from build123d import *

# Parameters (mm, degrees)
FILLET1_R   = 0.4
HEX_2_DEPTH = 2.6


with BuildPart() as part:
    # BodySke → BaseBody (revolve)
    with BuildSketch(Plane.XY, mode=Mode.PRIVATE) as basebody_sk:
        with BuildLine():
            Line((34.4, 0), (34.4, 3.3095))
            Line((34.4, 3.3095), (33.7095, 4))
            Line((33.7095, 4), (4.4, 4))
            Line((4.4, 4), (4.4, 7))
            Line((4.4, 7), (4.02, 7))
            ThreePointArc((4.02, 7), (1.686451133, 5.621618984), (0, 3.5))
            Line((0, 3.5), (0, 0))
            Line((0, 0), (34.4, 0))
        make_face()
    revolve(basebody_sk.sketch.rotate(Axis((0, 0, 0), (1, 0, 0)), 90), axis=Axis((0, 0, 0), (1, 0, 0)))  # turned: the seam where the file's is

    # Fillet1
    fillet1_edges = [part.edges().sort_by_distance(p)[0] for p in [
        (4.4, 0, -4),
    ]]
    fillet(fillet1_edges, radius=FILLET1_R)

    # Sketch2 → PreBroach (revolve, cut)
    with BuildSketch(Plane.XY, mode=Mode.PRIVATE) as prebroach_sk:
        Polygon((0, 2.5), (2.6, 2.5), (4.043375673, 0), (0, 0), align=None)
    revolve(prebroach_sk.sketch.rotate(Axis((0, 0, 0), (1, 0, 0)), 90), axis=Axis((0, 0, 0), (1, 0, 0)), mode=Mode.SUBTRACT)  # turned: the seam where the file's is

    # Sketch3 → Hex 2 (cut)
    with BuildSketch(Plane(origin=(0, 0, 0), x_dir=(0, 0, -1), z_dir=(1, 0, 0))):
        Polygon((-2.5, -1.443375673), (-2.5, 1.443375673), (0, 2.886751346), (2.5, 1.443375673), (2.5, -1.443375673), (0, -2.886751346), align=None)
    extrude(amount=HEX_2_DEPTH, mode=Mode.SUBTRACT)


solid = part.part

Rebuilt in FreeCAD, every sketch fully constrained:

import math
import FreeCAD as App
import Part
import Sketcher
Q = App.Units.Quantity


def edges_at(feature, points):
    """Names of the edges that pass closest to the given points."""
    edges = feature.Shape.Edges
    near = lambda p: min(range(len(edges)), key=lambda i: edges[i].distToShape(Part.Vertex(*p))[0])
    return sorted({f"Edge{near(p) + 1}" for p in points})


def add_polygon(sketch, points):
    """Adds a closed chain of lines whose ends are joined by coincident constraints."""
    first, n = sketch.GeometryCount, len(points)
    for a, b in zip(points, points[1:] + points[:1]):
        sketch.addGeometry(Part.LineSegment(App.Vector(*a, 0), App.Vector(*b, 0)), False)
    for i in range(n):
        sketch.addConstraint(Sketcher.Constraint("Coincident", first + i, 2, first + (i + 1) % n, 1))

doc = App.newDocument("Part")
body = doc.addObject("PartDesign::Body", "Body")

sketch1 = body.newObject("Sketcher::SketchObject", "Sketch")
sketch1.AttachmentSupport = (doc.getObject("XY_Plane"), [""])
sketch1.MapMode = "FlatFace"
sketch1.addGeometry([
    Part.LineSegment(App.Vector(34.4, 0, 0), App.Vector(34.4, 3.31, 0)),
    Part.LineSegment(App.Vector(34.4, 3.31, 0), App.Vector(33.71, 4, 0)),
    Part.LineSegment(App.Vector(33.71, 4, 0), App.Vector(4.4, 4, 0)),
    Part.LineSegment(App.Vector(4.4, 4, 0), App.Vector(4.4, 7, 0)),
    Part.LineSegment(App.Vector(4.4, 7, 0), App.Vector(4.02, 7, 0)),
    Part.ArcOfCircle(Part.Circle(App.Vector(6.58, 0, 0), App.Vector(0, 0, 1), 7.45), math.radians(110), math.radians(152)),
    Part.LineSegment(App.Vector(0, 3.5, 0), App.Vector(0, 0, 0)),
    Part.LineSegment(App.Vector(0, 0, 0), App.Vector(34.4, 0, 0)),
], False)
sketch1.addConstraint([
    Sketcher.Constraint("Coincident", 0, 2, 1, 1),
    Sketcher.Constraint("Coincident", 1, 2, 2, 1),
    Sketcher.Constraint("Coincident", 2, 2, 3, 1),
    Sketcher.Constraint("Coincident", 3, 2, 4, 1),
    Sketcher.Constraint("Coincident", 4, 2, 5, 1),
    Sketcher.Constraint("Coincident", 5, 2, 6, 1),
    Sketcher.Constraint("Coincident", 6, 2, 7, 1),
    Sketcher.Constraint("Coincident", 7, 2, 0, 1),
    Sketcher.Constraint("Vertical", 0),
    Sketcher.Constraint("Horizontal", 2),
    Sketcher.Constraint("Vertical", 3),
    Sketcher.Constraint("Horizontal", 4),
    Sketcher.Constraint("Vertical", 6),
    Sketcher.Constraint("Horizontal", 7),
    Sketcher.Constraint("Coincident", 6, 2, -1, 1),
    Sketcher.Constraint("PointOnObject", 5, 3, -1),
    Sketcher.Constraint("DistanceY", 3, 1, 3, 2, Q("3 mm")),
    Sketcher.Constraint("Angle", 1, Q("135 deg")),
    Sketcher.Constraint("DistanceX", 7, 1, 7, 2, Q("34.4 mm")),
    Sketcher.Constraint("DistanceY", 6, 2, 6, 1, Q("3.5 mm")),
    Sketcher.Constraint("DistanceY", -1, 1, 1, 2, Q("4 mm")),
    Sketcher.Constraint("DistanceX", 2, 2, 0, 2, Q("30 mm")),
    Sketcher.Constraint("DistanceX", 4, 2, 4, 1, Q("0.38 mm")),
    Sketcher.Constraint("DistanceX", 2, 2, 2, 1, Q("29.3095 mm")),
])
revolution = body.newObject("PartDesign::Revolution", "Revolution")
revolution.Profile = sketch1
revolution.ReferenceAxis = (sketch1, ["H_Axis"])
revolution.Angle = 360
doc.recompute()

fillet = body.newObject("PartDesign::Fillet", "Fillet")
fillet.Base = (revolution, edges_at(revolution, [(4.4, 0, -4)]))
fillet.Radius = 0.4

sketch2 = body.newObject("Sketcher::SketchObject", "Sketch001")
sketch2.AttachmentSupport = (doc.getObject("XY_Plane"), [""])
sketch2.MapMode = "FlatFace"
add_polygon(sketch2, [(2.6, 2.5), (0, 2.5), (0, 0), (4, 0)])
sketch2.addConstraint([
    Sketcher.Constraint("Horizontal", 0),
    Sketcher.Constraint("Vertical", 1),
    Sketcher.Constraint("Horizontal", 2),
    Sketcher.Constraint("Coincident", 1, 2, -1, 1),
    Sketcher.Constraint("Angle", 3, Q("120 deg")),
    Sketcher.Constraint("DistanceX", 0, 2, 0, 1, Q("2.6 mm")),
    Sketcher.Constraint("DistanceY", 1, 2, 1, 1, Q("2.5 mm")),
])
groove = body.newObject("PartDesign::Groove", "Groove")
groove.Profile = sketch2
groove.ReferenceAxis = (sketch2, ["H_Axis"])
groove.Angle = 360

sketch3 = body.newObject("Sketcher::SketchObject", "Sketch002")
sketch3.AttachmentSupport = (doc.getObject("YZ_Plane"), [""])
sketch3.MapMode = "FlatFace"
add_polygon(sketch3, [(1.4, 2.5), (-1.4, 2.5), (-2.9, 0), (-1.4, -2.5), (1.4, -2.5), (2.9, 0)])
sketch3.addConstraint([
    Sketcher.Constraint("Horizontal", 0),
    Sketcher.Constraint("Horizontal", 3),
    Sketcher.Constraint("Symmetric", 0, 2, 3, 2, -1, 1),
    Sketcher.Constraint("Symmetric", 1, 2, 4, 2, -1, 1),
    Sketcher.Constraint("PointOnObject", 1, 2, -1),
    Sketcher.Constraint("Parallel", 2, 5),
    Sketcher.Constraint("Vertical", 0, 2, 2, 2),
    Sketcher.Constraint("Angle", 1, Q("-120 deg")),
    Sketcher.Constraint("DistanceY", 2, 2, 0, 2, Q("5 mm")),
    Sketcher.Constraint("DistanceX", 0, 2, 0, 1, Q("2.886751 mm")),
])
pocket1 = body.newObject("PartDesign::Pocket", "Pocket")
pocket1.Profile = sketch3
pocket1.Length = 2.6
pocket1.Reversed = True

doc.recompute()
